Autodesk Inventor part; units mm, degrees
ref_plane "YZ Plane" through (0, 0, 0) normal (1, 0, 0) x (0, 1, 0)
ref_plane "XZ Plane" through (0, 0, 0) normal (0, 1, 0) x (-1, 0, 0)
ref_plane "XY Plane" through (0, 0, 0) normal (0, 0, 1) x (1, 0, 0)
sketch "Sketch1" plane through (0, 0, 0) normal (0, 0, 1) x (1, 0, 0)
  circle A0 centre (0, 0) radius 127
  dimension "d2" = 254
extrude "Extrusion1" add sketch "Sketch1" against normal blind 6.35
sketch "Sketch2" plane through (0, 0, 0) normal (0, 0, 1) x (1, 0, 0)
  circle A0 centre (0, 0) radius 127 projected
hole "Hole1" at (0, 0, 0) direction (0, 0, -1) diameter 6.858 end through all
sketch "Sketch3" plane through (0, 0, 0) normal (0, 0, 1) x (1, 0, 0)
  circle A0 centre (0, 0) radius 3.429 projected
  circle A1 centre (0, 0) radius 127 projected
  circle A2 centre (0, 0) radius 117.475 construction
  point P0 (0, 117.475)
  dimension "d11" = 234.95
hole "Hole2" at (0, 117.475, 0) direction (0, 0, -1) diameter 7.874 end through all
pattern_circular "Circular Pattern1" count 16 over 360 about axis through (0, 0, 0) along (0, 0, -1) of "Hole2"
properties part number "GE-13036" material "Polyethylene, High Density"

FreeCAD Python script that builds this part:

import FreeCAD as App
import Part
import Sketcher

V = App.Vector
Q = App.Units.Quantity

doc = App.newDocument("Part")
params = doc.addObject("Spreadsheet::Sheet", "Params")
for row, (alias, value) in enumerate([
    ("sketch1_diameter", "10 in"),
    ("pad1_length", "0.25 in"),
    ("sketch2_diameter", "0.27 in"),
    ("hole_diameter", "0.27 in"),
    ("sketch3_diameter", "0.31 in"),
    ("hole2_diameter", "0.31 in"),
], start=1):
    params.set(f"A{row}", alias)
    params.set(f"B{row}", "=" + value)
    params.setAlias(f"B{row}", alias)

body = doc.addObject("PartDesign::Body", "Body")

sketch1 = body.newObject("Sketcher::SketchObject", "Sketch")
sketch1.AttachmentSupport = (doc.getObject("XY_Plane"), [""])
sketch1.MapMode = "FlatFace"
sketch1.addGeometry(Part.Circle(V(0, 0, 0), V(0, 0, 1), 127), False)
sketch1.addConstraint(Sketcher.Constraint("Coincident", 0, 3, -1, 1))
sketch1.addConstraint(Sketcher.Constraint("Diameter", 0, Q("10 in")))
sketch1.setExpression("Constraints[1]", "Params.sketch1_diameter")
pad1 = body.newObject("PartDesign::Pad", "Pad")
pad1.Profile = sketch1
pad1.setExpression("Length", "Params.pad1_length")
pad1.Reversed = True

sketch2 = body.newObject("Sketcher::SketchObject", "Sketch001")
sketch2.AttachmentSupport = (doc.getObject("XY_Plane"), [""])
sketch2.MapMode = "FlatFace"
sketch2.addGeometry(Part.Circle(V(0, 0, 0), V(0, 0, 1), 3.429), False)
sketch2.addConstraint(Sketcher.Constraint("Coincident", 0, 3, -1, 1))
sketch2.addConstraint(Sketcher.Constraint("Diameter", 0, Q("0.27 in")))
sketch2.setExpression("Constraints[1]", "Params.sketch2_diameter")
doc.recompute()
hole = body.newObject("PartDesign::Hole", "Hole")
hole.Profile = sketch2
hole.ThreadType = "None"
hole.setExpression("Diameter", "Params.hole_diameter")
hole.DepthType = "ThroughAll"

sketch3 = body.newObject("Sketcher::SketchObject", "Sketch002")
sketch3.AttachmentSupport = (doc.getObject("XY_Plane"), [""])
sketch3.MapMode = "FlatFace"
sketch3.addGeometry(Part.Circle(V(0, 117.475, 0), V(0, 0, 1), 3.937), False)
sketch3.addConstraint(Sketcher.Constraint("PointOnObject", 0, 3, -2))
sketch3.addConstraint(Sketcher.Constraint("Diameter", 0, Q("0.31 in")))
sketch3.addConstraint(Sketcher.Constraint("DistanceY", -1, 1, 0, 3, Q("4.625 in")))
sketch3.setExpression("Constraints[1]", "Params.sketch3_diameter")
doc.recompute()
hole2 = body.newObject("PartDesign::Hole", "Hole001")
hole2.Profile = sketch3
hole2.ThreadType = "None"
hole2.setExpression("Diameter", "Params.hole2_diameter")
hole2.DepthType = "ThroughAll"
doc.recompute()

polarpattern = body.newObject("PartDesign::PolarPattern", "PolarPattern")
polarpattern.Originals = [hole2]
polarpattern.Axis = (doc.getObject("Z_Axis"), [""])
polarpattern.Angle = 360
polarpattern.Occurrences = 16
body.Tip = polarpattern

doc.recompute()
